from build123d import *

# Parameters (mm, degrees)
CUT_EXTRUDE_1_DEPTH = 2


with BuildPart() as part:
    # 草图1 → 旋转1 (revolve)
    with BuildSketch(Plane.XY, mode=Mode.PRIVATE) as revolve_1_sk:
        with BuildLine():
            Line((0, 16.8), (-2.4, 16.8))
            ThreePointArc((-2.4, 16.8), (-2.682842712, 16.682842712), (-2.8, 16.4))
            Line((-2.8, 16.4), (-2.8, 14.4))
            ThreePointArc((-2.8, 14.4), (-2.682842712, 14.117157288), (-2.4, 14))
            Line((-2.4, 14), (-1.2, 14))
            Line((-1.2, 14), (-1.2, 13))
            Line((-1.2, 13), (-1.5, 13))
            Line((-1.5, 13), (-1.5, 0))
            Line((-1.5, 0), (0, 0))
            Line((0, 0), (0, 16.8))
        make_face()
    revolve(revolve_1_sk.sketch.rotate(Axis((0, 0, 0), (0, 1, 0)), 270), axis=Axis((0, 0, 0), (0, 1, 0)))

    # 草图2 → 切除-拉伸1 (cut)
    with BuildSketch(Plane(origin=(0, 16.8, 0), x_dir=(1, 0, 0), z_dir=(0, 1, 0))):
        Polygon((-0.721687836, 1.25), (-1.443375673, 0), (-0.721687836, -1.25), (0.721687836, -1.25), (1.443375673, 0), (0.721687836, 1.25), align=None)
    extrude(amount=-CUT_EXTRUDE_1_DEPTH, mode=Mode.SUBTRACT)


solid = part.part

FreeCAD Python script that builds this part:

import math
import FreeCAD as App
import Part
import Sketcher

V = App.Vector
Q = App.Units.Quantity


def add_polygon(sketch, points):
    """Adds a closed chain of lines whose ends are joined by coincident constraints."""
    first, n = sketch.GeometryCount, len(points)
    for a, b in zip(points, points[1:] + points[:1]):
        sketch.addGeometry(Part.LineSegment(App.Vector(*a, 0), App.Vector(*b, 0)), False)
    for i in range(n):
        sketch.addConstraint(Sketcher.Constraint("Coincident", first + i, 2, first + (i + 1) % n, 1))

doc = App.newDocument("Part")
params = doc.addObject("Spreadsheet::Sheet", "Params")
for row, (alias, value) in enumerate([
    ("sketch1_radius", "0.4 mm"),
    ("sketch1_height", "2 mm"),
    ("sketch1_height2", "1 mm"),
    ("sketch1_height3", "13 mm"),
    ("sketch1_width", "2.4 mm"),
    ("revolution_angle", "360 deg"),
    ("pocket1_length", "2 mm"),
], start=1):
    params.set(f"A{row}", alias)
    params.set(f"B{row}", "=" + value)
    params.setAlias(f"B{row}", alias)

body = doc.addObject("PartDesign::Body", "Body")

sketch1 = doc.addObject("Sketcher::SketchObject", "Sketch")
body.addObject(sketch1)
sketch1.AttachmentSupport = (doc.XY_Plane, [""])
sketch1.MapMode = "FlatFace"
sketch1.addGeometry([
    Part.LineSegment(V(0, 16.8, 0), V(-2.4, 16.8, 0)),
    Part.ArcOfCircle(Part.Circle(V(-2.4, 16.4, 0), V(0, 0, 1), 0.4), math.radians(90), math.radians(180)),
    Part.LineSegment(V(-2.8, 16.4, 0), V(-2.8, 14.4, 0)),
    Part.ArcOfCircle(Part.Circle(V(-2.4, 14.4, 0), V(0, 0, 1), 0.4), math.radians(-180), math.radians(-90)),
    Part.LineSegment(V(-2.4, 14, 0), V(-1.2, 14, 0)),
    Part.LineSegment(V(-1.2, 14, 0), V(-1.2, 13, 0)),
    Part.LineSegment(V(-1.2, 13, 0), V(-1.5, 13, 0)),
    Part.LineSegment(V(-1.5, 13, 0), V(-1.5, 0, 0)),
    Part.LineSegment(V(-1.5, 0, 0), V(0, 0, 0)),
    Part.LineSegment(V(0, 0, 0), V(0, 16.8, 0)),
], False)
sketch1.addConstraint([
    Sketcher.Constraint("Tangent", 0, 2, 1, 1),
    Sketcher.Constraint("Tangent", 1, 2, 2, 1),
    Sketcher.Constraint("Tangent", 2, 2, 3, 1),
    Sketcher.Constraint("Tangent", 3, 2, 4, 1),
    Sketcher.Constraint("Coincident", 4, 2, 5, 1),
    Sketcher.Constraint("Coincident", 5, 2, 6, 1),
    Sketcher.Constraint("Coincident", 6, 2, 7, 1),
    Sketcher.Constraint("Coincident", 7, 2, 8, 1),
    Sketcher.Constraint("Coincident", 8, 2, 9, 1),
    Sketcher.Constraint("Coincident", 9, 2, 0, 1),
    Sketcher.Constraint("Horizontal", 0),
    Sketcher.Constraint("Vertical", 2),
    Sketcher.Constraint("Horizontal", 4),
    Sketcher.Constraint("Vertical", 5),
    Sketcher.Constraint("Horizontal", 6),
    Sketcher.Constraint("Vertical", 7),
    Sketcher.Constraint("Horizontal", 8),
    Sketcher.Constraint("Vertical", 9),
    Sketcher.Constraint("Coincident", 8, 2, -1, 1),
    Sketcher.Constraint("Equal", 1, 3),
    Sketcher.Constraint("Radius", 1, Q("0.4 mm")),
    Sketcher.Constraint("DistanceY", 2, 2, 2, 1, Q("2 mm")),
    Sketcher.Constraint("DistanceY", 5, 2, 5, 1, Q("1 mm")),
    Sketcher.Constraint("DistanceY", 7, 2, 7, 1, Q("13 mm")),
    Sketcher.Constraint("DistanceX", 0, 2, 0, 1, Q("2.4 mm")),
    Sketcher.Constraint("DistanceX", 4, 1, 4, 2, Q("1.2 mm")),
    Sketcher.Constraint("DistanceX", 6, 2, 6, 1, Q("0.3 mm")),
])
sketch1.setExpression("Constraints[20]", "Params.sketch1_radius")
sketch1.setExpression("Constraints[21]", "Params.sketch1_height")
sketch1.setExpression("Constraints[22]", "Params.sketch1_height2")
sketch1.setExpression("Constraints[23]", "Params.sketch1_height3")
sketch1.setExpression("Constraints[24]", "Params.sketch1_width")
revolution = doc.addObject("PartDesign::Revolution", "Revolution")
body.addObject(revolution)
revolution.Profile = sketch1
revolution.ReferenceAxis = (sketch1, ["V_Axis"])
revolution.setExpression("Angle", "Params.revolution_angle")

sketch2 = doc.addObject("Sketcher::SketchObject", "Sketch001")
body.addObject(sketch2)
sketch2.AttachmentSupport = (doc.XZ_Plane, [""])
sketch2.MapMode = "FlatFace"
sketch2.AttachmentOffset = App.Placement(V(0, 0, -16.8), App.Rotation())
add_polygon(sketch2, [(-0.7, -1.2), (-1.4, 0), (-0.7, 1.2), (0.7, 1.2), (1.4, 0), (0.7, -1.2)])
sketch2.addConstraint([
    Sketcher.Constraint("Horizontal", 2),
    Sketcher.Constraint("Horizontal", 5),
    Sketcher.Constraint("Symmetric", 0, 2, 3, 2, -1, 1),
    Sketcher.Constraint("Symmetric", 1, 2, 4, 2, -1, 1),
    Sketcher.Constraint("PointOnObject", 0, 2, -1),
    Sketcher.Constraint("Parallel", 0, 3),
    Sketcher.Constraint("Vertical", 2, 2, 4, 2),
    Sketcher.Constraint("Angle", 0, Q("120 deg")),
    Sketcher.Constraint("DistanceY", 4, 2, 2, 2, Q("2.5 mm")),
    Sketcher.Constraint("DistanceX", 2, 1, 2, 2, Q("1.443376 mm")),
])
pocket1 = doc.addObject("PartDesign::Pocket", "Pocket")
body.addObject(pocket1)
pocket1.Profile = sketch2
pocket1.setExpression("Length", "Params.pocket1_length")
pocket1.Reversed = True

doc.recompute()
